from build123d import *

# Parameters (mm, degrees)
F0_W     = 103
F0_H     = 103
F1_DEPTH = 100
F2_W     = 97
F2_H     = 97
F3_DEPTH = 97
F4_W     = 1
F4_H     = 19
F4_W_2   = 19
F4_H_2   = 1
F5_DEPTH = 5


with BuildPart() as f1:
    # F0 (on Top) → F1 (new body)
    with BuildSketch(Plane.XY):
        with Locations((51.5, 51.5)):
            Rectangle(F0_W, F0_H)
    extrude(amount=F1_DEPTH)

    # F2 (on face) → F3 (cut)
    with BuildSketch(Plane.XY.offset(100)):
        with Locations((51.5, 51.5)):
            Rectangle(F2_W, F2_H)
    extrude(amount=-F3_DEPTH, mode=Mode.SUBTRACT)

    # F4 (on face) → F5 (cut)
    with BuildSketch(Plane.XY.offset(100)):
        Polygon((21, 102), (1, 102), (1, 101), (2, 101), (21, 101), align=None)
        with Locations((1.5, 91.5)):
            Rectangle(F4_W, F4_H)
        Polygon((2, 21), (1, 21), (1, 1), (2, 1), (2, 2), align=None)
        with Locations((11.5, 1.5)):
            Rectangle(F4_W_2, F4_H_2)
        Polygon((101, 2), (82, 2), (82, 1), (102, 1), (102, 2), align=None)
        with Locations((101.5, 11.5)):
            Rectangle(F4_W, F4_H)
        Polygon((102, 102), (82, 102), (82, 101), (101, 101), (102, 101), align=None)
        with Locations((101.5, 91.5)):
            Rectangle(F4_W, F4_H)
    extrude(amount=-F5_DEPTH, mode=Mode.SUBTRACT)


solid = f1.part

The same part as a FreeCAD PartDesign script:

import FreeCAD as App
import Part
import Sketcher
from FreeCAD import Vector
Q = App.Units.Quantity


def add_polygon(sketch, points):
    """Adds a closed chain of lines whose ends are joined by coincident constraints."""
    first, n = sketch.GeometryCount, len(points)
    for a, b in zip(points, points[1:] + points[:1]):
        sketch.addGeometry(Part.LineSegment(App.Vector(*a, 0), App.Vector(*b, 0)), False)
    for i in range(n):
        sketch.addConstraint(Sketcher.Constraint("Coincident", first + i, 2, first + (i + 1) % n, 1))

doc = App.newDocument("Part")
body = doc.addObject("PartDesign::Body", "Body")

sketch1 = body.newObject("Sketcher::SketchObject", "Sketch")
sketch1.AttachmentSupport = (doc.getObject("XY_Plane"), [""])
sketch1.MapMode = "FlatFace"
add_polygon(sketch1, [(0, 103), (0, 0), (103, 0), (103, 103)])
sketch1.addConstraint([
    Sketcher.Constraint("Vertical", 0),
    Sketcher.Constraint("Horizontal", 1),
    Sketcher.Constraint("Vertical", 2),
    Sketcher.Constraint("Horizontal", 3),
    Sketcher.Constraint("Coincident", 0, 2, -1, 1),
    Sketcher.Constraint("Equal", 3, 0),
    Sketcher.Constraint("DistanceX", 1, 1, 1, 2, Q("103 mm")),
])
pad1 = body.newObject("PartDesign::Pad", "Pad")
pad1.Profile = sketch1
pad1.Length = 100

sketch2 = body.newObject("Sketcher::SketchObject", "Sketch001")
sketch2.AttachmentSupport = (doc.getObject("XY_Plane"), [""])
sketch2.MapMode = "FlatFace"
sketch2.AttachmentOffset = App.Placement(Vector(0, 0, 100), App.Rotation())
add_polygon(sketch2, [(3, 100), (3, 3), (100, 3), (100, 100)])
sketch2.addConstraint([
    Sketcher.Constraint("Vertical", 0),
    Sketcher.Constraint("Horizontal", 1),
    Sketcher.Constraint("Vertical", 2),
    Sketcher.Constraint("Horizontal", 3),
    Sketcher.Constraint("Equal", 3, 0),
    Sketcher.Constraint("DistanceX", 1, 1, 1, 2, Q("97 mm")),
    Sketcher.Constraint("DistanceX", -1, 1, 0, 2, Q("3 mm")),
    Sketcher.Constraint("DistanceY", -1, 1, 0, 2, Q("3 mm")),
])
pocket1 = body.newObject("PartDesign::Pocket", "Pocket")
pocket1.Profile = sketch2
pocket1.Length = 97

sketch3 = body.newObject("Sketcher::SketchObject", "Sketch002")
sketch3.AttachmentSupport = (doc.getObject("XY_Plane"), [""])
sketch3.MapMode = "FlatFace"
sketch3.AttachmentOffset = App.Placement(Vector(0, 0, 100), App.Rotation())
add_polygon(sketch3, [(21, 102), (1, 102), (1, 82), (2, 82), (2, 101), (21, 101)])
add_polygon(sketch3, [(2, 21), (1, 21), (1, 1), (21, 1), (21, 2), (2, 2)])
add_polygon(sketch3, [(82, 2), (82, 1), (102, 1), (102, 21), (101, 21), (101, 2)])
add_polygon(sketch3, [(102, 102), (82, 102), (82, 101), (101, 101), (101, 82), (102, 82)])
sketch3.addConstraint([
    Sketcher.Constraint("Horizontal", 0),
    Sketcher.Constraint("Vertical", 1),
    Sketcher.Constraint("Horizontal", 2),
    Sketcher.Constraint("Vertical", 3),
    Sketcher.Constraint("Horizontal", 4),
    Sketcher.Constraint("Vertical", 5),
    Sketcher.Constraint("Horizontal", 6),
    Sketcher.Constraint("Vertical", 7),
    Sketcher.Constraint("Horizontal", 8),
    Sketcher.Constraint("Vertical", 9),
    Sketcher.Constraint("Horizontal", 10),
    Sketcher.Constraint("Vertical", 11),
    Sketcher.Constraint("Vertical", 12),
    Sketcher.Constraint("Horizontal", 13),
    Sketcher.Constraint("Vertical", 14),
    Sketcher.Constraint("Horizontal", 15),
    Sketcher.Constraint("Vertical", 16),
    Sketcher.Constraint("Horizontal", 17),
    Sketcher.Constraint("Horizontal", 18),
    Sketcher.Constraint("Vertical", 19),
    Sketcher.Constraint("Horizontal", 20),
    Sketcher.Constraint("Vertical", 21),
    Sketcher.Constraint("Horizontal", 22),
    Sketcher.Constraint("Vertical", 23),
    Sketcher.Constraint("Horizontal", 8, 2, 12, 2),
    Sketcher.Constraint("Horizontal", 11, 2, 14, 2),
    Sketcher.Constraint("Horizontal", 10, 2, 16, 2),
    Sketcher.Constraint("Horizontal", 5, 2, 18, 2),
    Sketcher.Constraint("Horizontal", 4, 2, 19, 2),
    Sketcher.Constraint("Horizontal", 2, 2, 21, 2),
    Sketcher.Constraint("Vertical", 1, 2, 6, 2),
    Sketcher.Constraint("Vertical", 5, 2, 8, 2),
    Sketcher.Constraint("Vertical", 3, 2, 10, 2),
    Sketcher.Constraint("Vertical", 17, 2, 18, 2),
    Sketcher.Constraint("Vertical", 16, 2, 20, 2),
    Sketcher.Constraint("Vertical", 14, 2, 22, 2),
    Sketcher.Constraint("Equal", 8, 13),
    Sketcher.Constraint("Equal", 6, 15),
    Sketcher.Constraint("Equal", 18, 1),
    Sketcher.Constraint("Equal", 20, 3),
    Sketcher.Constraint("Equal", 1, 7),
    Sketcher.Constraint("Equal", 5, 9),
    Sketcher.Constraint("DistanceX", 0, 2, 0, 1, Q("20 mm")),
    Sketcher.Constraint("DistanceX", 2, 1, 2, 2, Q("1 mm")),
    Sketcher.Constraint("DistanceX", -1, 1, 0, 2, Q("1 mm")),
    Sketcher.Constraint("DistanceY", -1, 1, 0, 2, Q("102 mm")),
    Sketcher.Constraint("DistanceY", -1, 1, 6, 2, Q("21 mm")),
    Sketcher.Constraint("DistanceX", -1, 1, 12, 2, Q("82 mm")),
])
pocket2 = body.newObject("PartDesign::Pocket", "Pocket001")
pocket2.Profile = sketch3
pocket2.Length = 5

doc.recompute()
